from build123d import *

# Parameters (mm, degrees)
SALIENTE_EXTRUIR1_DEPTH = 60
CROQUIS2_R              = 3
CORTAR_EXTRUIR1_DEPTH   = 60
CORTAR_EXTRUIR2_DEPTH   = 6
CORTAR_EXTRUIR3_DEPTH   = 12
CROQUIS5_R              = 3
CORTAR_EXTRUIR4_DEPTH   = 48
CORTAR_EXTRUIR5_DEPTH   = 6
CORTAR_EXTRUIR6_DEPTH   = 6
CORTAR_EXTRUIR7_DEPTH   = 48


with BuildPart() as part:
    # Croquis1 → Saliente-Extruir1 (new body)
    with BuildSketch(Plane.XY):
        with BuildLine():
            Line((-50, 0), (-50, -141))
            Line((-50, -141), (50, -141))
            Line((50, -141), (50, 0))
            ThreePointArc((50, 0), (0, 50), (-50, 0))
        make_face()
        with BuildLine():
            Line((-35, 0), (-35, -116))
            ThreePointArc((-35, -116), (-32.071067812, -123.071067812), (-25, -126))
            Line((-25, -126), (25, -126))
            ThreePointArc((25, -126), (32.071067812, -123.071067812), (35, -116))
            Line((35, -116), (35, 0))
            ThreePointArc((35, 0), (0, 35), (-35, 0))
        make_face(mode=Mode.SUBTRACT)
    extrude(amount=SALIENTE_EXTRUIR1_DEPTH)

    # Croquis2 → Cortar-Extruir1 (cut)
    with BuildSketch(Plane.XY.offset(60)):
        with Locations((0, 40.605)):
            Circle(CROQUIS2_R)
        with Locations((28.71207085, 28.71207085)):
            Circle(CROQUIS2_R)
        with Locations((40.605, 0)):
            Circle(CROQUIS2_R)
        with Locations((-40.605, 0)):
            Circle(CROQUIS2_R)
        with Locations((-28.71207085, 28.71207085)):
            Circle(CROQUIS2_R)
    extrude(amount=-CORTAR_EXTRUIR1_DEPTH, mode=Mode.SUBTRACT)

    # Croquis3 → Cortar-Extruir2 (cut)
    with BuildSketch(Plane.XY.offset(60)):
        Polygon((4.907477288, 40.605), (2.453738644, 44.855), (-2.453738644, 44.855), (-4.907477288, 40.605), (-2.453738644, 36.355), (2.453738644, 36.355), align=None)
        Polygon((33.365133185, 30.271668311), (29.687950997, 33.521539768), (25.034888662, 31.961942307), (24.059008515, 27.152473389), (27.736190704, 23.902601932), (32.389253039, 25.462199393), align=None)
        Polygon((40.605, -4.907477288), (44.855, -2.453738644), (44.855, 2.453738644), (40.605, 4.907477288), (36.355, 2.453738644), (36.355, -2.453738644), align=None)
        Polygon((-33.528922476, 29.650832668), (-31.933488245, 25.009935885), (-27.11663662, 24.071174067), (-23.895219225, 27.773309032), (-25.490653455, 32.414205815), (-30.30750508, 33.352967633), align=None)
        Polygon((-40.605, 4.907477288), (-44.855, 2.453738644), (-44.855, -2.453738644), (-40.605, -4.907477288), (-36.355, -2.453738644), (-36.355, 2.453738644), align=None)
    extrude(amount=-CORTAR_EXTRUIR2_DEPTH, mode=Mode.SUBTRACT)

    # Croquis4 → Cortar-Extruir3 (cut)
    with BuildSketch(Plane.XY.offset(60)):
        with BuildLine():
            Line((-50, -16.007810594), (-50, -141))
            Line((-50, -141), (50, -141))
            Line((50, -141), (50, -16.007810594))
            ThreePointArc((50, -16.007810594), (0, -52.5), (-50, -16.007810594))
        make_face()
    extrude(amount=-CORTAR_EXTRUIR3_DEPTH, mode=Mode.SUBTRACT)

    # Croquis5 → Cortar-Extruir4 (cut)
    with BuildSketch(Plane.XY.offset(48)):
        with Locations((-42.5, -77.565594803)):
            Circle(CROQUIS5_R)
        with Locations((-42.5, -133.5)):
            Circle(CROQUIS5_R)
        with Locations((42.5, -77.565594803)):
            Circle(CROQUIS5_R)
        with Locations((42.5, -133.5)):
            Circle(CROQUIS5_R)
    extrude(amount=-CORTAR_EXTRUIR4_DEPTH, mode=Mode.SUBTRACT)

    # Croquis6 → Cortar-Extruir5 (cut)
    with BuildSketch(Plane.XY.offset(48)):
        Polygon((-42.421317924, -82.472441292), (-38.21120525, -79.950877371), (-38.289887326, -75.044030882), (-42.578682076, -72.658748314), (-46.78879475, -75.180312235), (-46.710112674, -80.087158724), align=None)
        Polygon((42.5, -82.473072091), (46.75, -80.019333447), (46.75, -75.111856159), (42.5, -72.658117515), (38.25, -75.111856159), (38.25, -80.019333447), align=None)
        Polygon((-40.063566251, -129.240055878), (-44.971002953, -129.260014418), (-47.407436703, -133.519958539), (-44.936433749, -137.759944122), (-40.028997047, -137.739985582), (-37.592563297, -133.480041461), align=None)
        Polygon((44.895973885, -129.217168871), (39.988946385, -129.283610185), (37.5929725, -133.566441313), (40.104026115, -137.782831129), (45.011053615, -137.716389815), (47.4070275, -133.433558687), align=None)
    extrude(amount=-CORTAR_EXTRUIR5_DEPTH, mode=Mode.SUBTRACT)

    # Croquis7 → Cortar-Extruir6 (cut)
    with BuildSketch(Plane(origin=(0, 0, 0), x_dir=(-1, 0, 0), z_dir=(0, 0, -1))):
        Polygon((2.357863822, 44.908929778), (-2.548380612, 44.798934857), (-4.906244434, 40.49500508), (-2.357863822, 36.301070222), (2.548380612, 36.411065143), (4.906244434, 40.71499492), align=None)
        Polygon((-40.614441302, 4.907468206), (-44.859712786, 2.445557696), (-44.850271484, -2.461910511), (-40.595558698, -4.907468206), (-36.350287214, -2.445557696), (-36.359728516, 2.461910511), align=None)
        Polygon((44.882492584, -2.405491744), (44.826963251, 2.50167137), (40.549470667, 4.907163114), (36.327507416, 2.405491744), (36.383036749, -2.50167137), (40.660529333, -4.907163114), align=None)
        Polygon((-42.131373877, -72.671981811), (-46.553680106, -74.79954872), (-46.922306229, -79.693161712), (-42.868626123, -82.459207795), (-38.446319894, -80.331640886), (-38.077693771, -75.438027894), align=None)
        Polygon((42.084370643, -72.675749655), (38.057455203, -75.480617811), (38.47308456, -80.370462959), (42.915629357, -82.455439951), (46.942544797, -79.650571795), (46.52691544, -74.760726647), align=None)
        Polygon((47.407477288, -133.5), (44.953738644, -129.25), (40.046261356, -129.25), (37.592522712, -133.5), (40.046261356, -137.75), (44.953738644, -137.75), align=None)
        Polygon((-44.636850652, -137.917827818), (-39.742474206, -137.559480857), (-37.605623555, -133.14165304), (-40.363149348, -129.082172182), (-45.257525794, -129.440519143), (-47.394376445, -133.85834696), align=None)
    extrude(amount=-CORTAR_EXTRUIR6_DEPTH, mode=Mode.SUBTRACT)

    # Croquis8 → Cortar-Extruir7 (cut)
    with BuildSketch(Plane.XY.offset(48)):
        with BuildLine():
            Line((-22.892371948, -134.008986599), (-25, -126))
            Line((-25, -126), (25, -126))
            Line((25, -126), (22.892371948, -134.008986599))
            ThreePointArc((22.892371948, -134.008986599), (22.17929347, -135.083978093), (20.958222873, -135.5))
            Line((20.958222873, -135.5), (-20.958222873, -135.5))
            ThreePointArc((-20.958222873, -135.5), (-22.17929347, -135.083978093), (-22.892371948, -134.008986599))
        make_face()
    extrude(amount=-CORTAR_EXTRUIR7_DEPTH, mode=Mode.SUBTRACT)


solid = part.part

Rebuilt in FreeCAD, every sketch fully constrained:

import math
import FreeCAD as App
import Part
import Sketcher

V = App.Vector
Q = App.Units.Quantity

doc = App.newDocument("Part")
body = doc.addObject("PartDesign::Body", "Body")

# Sketch on XY plane
sketch1 = doc.addObject("Sketcher::SketchObject", "Sketch")
body.addObject(sketch1)
sketch1.AttachmentSupport = (doc.XY_Plane, [""])
sketch1.MapMode = "FlatFace"
sketch1.addGeometry(Part.LineSegment(V(-50, 0, 0), V(-50, -141, 0)), False)
sketch1.addGeometry(Part.LineSegment(V(-50, -141, 0), V(50, -141, 0)), False)
sketch1.addGeometry(Part.LineSegment(V(50, -141, 0), V(50, 0, 0)), False)
sketch1.addGeometry(Part.ArcOfCircle(Part.Circle(V(0, 0, 0), V(0, 0, 1), 50), math.radians(0), math.radians(180)), False)
sketch1.addGeometry(Part.LineSegment(V(-35, -116, 0), V(-35, 0, 0)), False)
sketch1.addGeometry(Part.ArcOfCircle(Part.Circle(V(0, 0, 0), V(0, 0, 1), 35), math.radians(0), math.radians(180)), False)
sketch1.addGeometry(Part.LineSegment(V(35, 0, 0), V(35, -116, 0)), False)
sketch1.addGeometry(Part.ArcOfCircle(Part.Circle(V(25, -116, 0), V(0, 0, 1), 10), math.radians(-90), math.radians(0)), False)
sketch1.addGeometry(Part.LineSegment(V(25, -126, 0), V(-25, -126, 0)), False)
sketch1.addGeometry(Part.ArcOfCircle(Part.Circle(V(-25, -116, 0), V(0, 0, 1), 10), math.radians(180), math.radians(270)), False)
sketch1.addConstraint(Sketcher.Constraint("Coincident", 0, 2, 1, 1))
sketch1.addConstraint(Sketcher.Constraint("Coincident", 1, 2, 2, 1))
sketch1.addConstraint(Sketcher.Constraint("Tangent", 2, 2, 3, 1))
sketch1.addConstraint(Sketcher.Constraint("Tangent", 3, 2, 0, 1))
sketch1.addConstraint(Sketcher.Constraint("Tangent", 4, 2, 5, 2))
sketch1.addConstraint(Sketcher.Constraint("Tangent", 5, 1, 6, 1))
sketch1.addConstraint(Sketcher.Constraint("Tangent", 6, 2, 7, 2))
sketch1.addConstraint(Sketcher.Constraint("Tangent", 7, 1, 8, 1))
sketch1.addConstraint(Sketcher.Constraint("Tangent", 8, 2, 9, 2))
sketch1.addConstraint(Sketcher.Constraint("Tangent", 9, 1, 4, 1))
sketch1.addConstraint(Sketcher.Constraint("Vertical", 0))
sketch1.addConstraint(Sketcher.Constraint("Horizontal", 1))
sketch1.addConstraint(Sketcher.Constraint("Vertical", 2))
sketch1.addConstraint(Sketcher.Constraint("Vertical", 4))
sketch1.addConstraint(Sketcher.Constraint("Vertical", 6))
sketch1.addConstraint(Sketcher.Constraint("Horizontal", 8))
sketch1.addConstraint(Sketcher.Constraint("Coincident", 3, 3, -1, 1))
sketch1.addConstraint(Sketcher.Constraint("Coincident", 5, 3, -1, 1))
sketch1.addConstraint(Sketcher.Constraint("Equal", 7, 9))
sketch1.addConstraint(Sketcher.Constraint("Radius", 3, Q("50 mm")))
sketch1.addConstraint(Sketcher.Constraint("Radius", 5, Q("35 mm")))
sketch1.addConstraint(Sketcher.Constraint("Radius", 7, Q("10 mm")))
sketch1.addConstraint(Sketcher.Constraint("DistanceY", 0, 2, 0, 1, Q("141 mm")))
sketch1.addConstraint(Sketcher.Constraint("DistanceY", 4, 1, 4, 2, Q("116 mm")))
pad1 = doc.addObject("PartDesign::Pad", "Pad")
body.addObject(pad1)
pad1.Profile = sketch1
pad1.Length = 60

# Sketch on XY plane
sketch2 = doc.addObject("Sketcher::SketchObject", "Sketch001")
body.addObject(sketch2)
sketch2.AttachmentSupport = (doc.XY_Plane, [""])
sketch2.MapMode = "FlatFace"
sketch2.AttachmentOffset = App.Placement(V(0, 0, 60), App.Rotation())
sketch2.addGeometry(Part.Circle(V(0, 40.6, 0), V(0, 0, 1), 3), False)
sketch2.addGeometry(Part.Circle(V(28.7, 28.7, 0), V(0, 0, 1), 3), False)
sketch2.addGeometry(Part.Circle(V(40.6, 0, 0), V(0, 0, 1), 3), False)
sketch2.addGeometry(Part.Circle(V(-40.6, 0, 0), V(0, 0, 1), 3), False)
sketch2.addGeometry(Part.Circle(V(-28.7, 28.7, 0), V(0, 0, 1), 3), False)
sketch2.addConstraint(Sketcher.Constraint("Equal", 0, 1))
sketch2.addConstraint(Sketcher.Constraint("Equal", 1, 2))
sketch2.addConstraint(Sketcher.Constraint("Equal", 2, 3))
sketch2.addConstraint(Sketcher.Constraint("Equal", 3, 4))
sketch2.addConstraint(Sketcher.Constraint("Symmetric", 2, 3, 3, 3, -1, 1))
sketch2.addConstraint(Sketcher.Constraint("Symmetric", 1, 3, 4, 3, -2))
sketch2.addConstraint(Sketcher.Constraint("PointOnObject", 0, 3, -2))
sketch2.addConstraint(Sketcher.Constraint("PointOnObject", 2, 3, -1))
sketch2.addConstraint(Sketcher.Constraint("Diameter", 0, Q("6 mm")))
sketch2.addConstraint(Sketcher.Constraint("DistanceX", 3, 3, 2, 3, Q("81.21 mm")))
sketch2.addConstraint(Sketcher.Constraint("DistanceY", -1, 1, 0, 3, Q("40.605 mm")))
sketch2.addConstraint(Sketcher.Constraint("DistanceX", -1, 1, 1, 3, Q("28.712071 mm")))
sketch2.addConstraint(Sketcher.Constraint("DistanceY", -1, 1, 1, 3, Q("28.712071 mm")))
pocket1 = doc.addObject("PartDesign::Pocket", "Pocket")
body.addObject(pocket1)
pocket1.Profile = sketch2
pocket1.Length = 60

# Sketch on XY plane
sketch3 = doc.addObject("Sketcher::SketchObject", "Sketch002")
body.addObject(sketch3)
sketch3.AttachmentSupport = (doc.XY_Plane, [""])
sketch3.MapMode = "FlatFace"
sketch3.AttachmentOffset = App.Placement(V(0, 0, 60), App.Rotation())
sketch3.addGeometry(Part.LineSegment(V(4.9, 40.6, 0), V(2.5, 44.9, 0)), False)
sketch3.addGeometry(Part.LineSegment(V(2.5, 44.9, 0), V(-2.5, 44.9, 0)), False)
sketch3.addGeometry(Part.LineSegment(V(-2.5, 44.9, 0), V(-4.9, 40.6, 0)), False)
sketch3.addGeometry(Part.LineSegment(V(-4.9, 40.6, 0), V(-2.5, 36.4, 0)), False)
sketch3.addGeometry(Part.LineSegment(V(-2.5, 36.4, 0), V(2.5, 36.4, 0)), False)
sketch3.addGeometry(Part.LineSegment(V(2.5, 36.4, 0), V(4.9, 40.6, 0)), False)
sketch3.addGeometry(Part.LineSegment(V(33.4, 30.3, 0), V(29.7, 33.5, 0)), False)
sketch3.addGeometry(Part.LineSegment(V(29.7, 33.5, 0), V(25, 32, 0)), False)
sketch3.addGeometry(Part.LineSegment(V(25, 32, 0), V(24.1, 27.2, 0)), False)
sketch3.addGeometry(Part.LineSegment(V(24.1, 27.2, 0), V(27.7, 23.9, 0)), False)
sketch3.addGeometry(Part.LineSegment(V(27.7, 23.9, 0), V(32.4, 25.5, 0)), False)
sketch3.addGeometry(Part.LineSegment(V(32.4, 25.5, 0), V(33.4, 30.3, 0)), False)
sketch3.addGeometry(Part.LineSegment(V(40.6, -4.9, 0), V(44.9, -2.5, 0)), False)
sketch3.addGeometry(Part.LineSegment(V(44.9, -2.5, 0), V(44.9, 2.5, 0)), False)
sketch3.addGeometry(Part.LineSegment(V(44.9, 2.5, 0), V(40.6, 4.9, 0)), False)
sketch3.addGeometry(Part.LineSegment(V(40.6, 4.9, 0), V(36.4, 2.5, 0)), False)
sketch3.addGeometry(Part.LineSegment(V(36.4, 2.5, 0), V(36.4, -2.5, 0)), False)
sketch3.addGeometry(Part.LineSegment(V(36.4, -2.5, 0), V(40.6, -4.9, 0)), False)
sketch3.addGeometry(Part.LineSegment(V(-33.5, 29.7, 0), V(-31.9, 25, 0)), False)
sketch3.addGeometry(Part.LineSegment(V(-31.9, 25, 0), V(-27.1, 24.1, 0)), False)
sketch3.addGeometry(Part.LineSegment(V(-27.1, 24.1, 0), V(-23.9, 27.8, 0)), False)
sketch3.addGeometry(Part.LineSegment(V(-23.9, 27.8, 0), V(-25.5, 32.4, 0)), False)
sketch3.addGeometry(Part.LineSegment(V(-25.5, 32.4, 0), V(-30.3, 33.4, 0)), False)
sketch3.addGeometry(Part.LineSegment(V(-30.3, 33.4, 0), V(-33.5, 29.7, 0)), False)
sketch3.addGeometry(Part.LineSegment(V(-40.6, 4.9, 0), V(-44.9, 2.5, 0)), False)
sketch3.addGeometry(Part.LineSegment(V(-44.9, 2.5, 0), V(-44.9, -2.5, 0)), False)
sketch3.addGeometry(Part.LineSegment(V(-44.9, -2.5, 0), V(-40.6, -4.9, 0)), False)
sketch3.addGeometry(Part.LineSegment(V(-40.6, -4.9, 0), V(-36.4, -2.5, 0)), False)
sketch3.addGeometry(Part.LineSegment(V(-36.4, -2.5, 0), V(-36.4, 2.5, 0)), False)
sketch3.addGeometry(Part.LineSegment(V(-36.4, 2.5, 0), V(-40.6, 4.9, 0)), False)
sketch3.addConstraint(Sketcher.Constraint("Coincident", 0, 2, 1, 1))
sketch3.addConstraint(Sketcher.Constraint("Coincident", 1, 2, 2, 1))
sketch3.addConstraint(Sketcher.Constraint("Coincident", 2, 2, 3, 1))
sketch3.addConstraint(Sketcher.Constraint("Coincident", 3, 2, 4, 1))
sketch3.addConstraint(Sketcher.Constraint("Coincident", 4, 2, 5, 1))
sketch3.addConstraint(Sketcher.Constraint("Coincident", 5, 2, 0, 1))
sketch3.addConstraint(Sketcher.Constraint("Coincident", 6, 2, 7, 1))
sketch3.addConstraint(Sketcher.Constraint("Coincident", 7, 2, 8, 1))
sketch3.addConstraint(Sketcher.Constraint("Coincident", 8, 2, 9, 1))
sketch3.addConstraint(Sketcher.Constraint("Coincident", 9, 2, 10, 1))
sketch3.addConstraint(Sketcher.Constraint("Coincident", 10, 2, 11, 1))
sketch3.addConstraint(Sketcher.Constraint("Coincident", 11, 2, 6, 1))
sketch3.addConstraint(Sketcher.Constraint("Coincident", 12, 2, 13, 1))
sketch3.addConstraint(Sketcher.Constraint("Coincident", 13, 2, 14, 1))
sketch3.addConstraint(Sketcher.Constraint("Coincident", 14, 2, 15, 1))
sketch3.addConstraint(Sketcher.Constraint("Coincident", 15, 2, 16, 1))
sketch3.addConstraint(Sketcher.Constraint("Coincident", 16, 2, 17, 1))
sketch3.addConstraint(Sketcher.Constraint("Coincident", 17, 2, 12, 1))
sketch3.addConstraint(Sketcher.Constraint("Coincident", 18, 2, 19, 1))
sketch3.addConstraint(Sketcher.Constraint("Coincident", 19, 2, 20, 1))
sketch3.addConstraint(Sketcher.Constraint("Coincident", 20, 2, 21, 1))
sketch3.addConstraint(Sketcher.Constraint("Coincident", 21, 2, 22, 1))
sketch3.addConstraint(Sketcher.Constraint("Coincident", 22, 2, 23, 1))
sketch3.addConstraint(Sketcher.Constraint("Coincident", 23, 2, 18, 1))
sketch3.addConstraint(Sketcher.Constraint("Coincident", 24, 2, 25, 1))
sketch3.addConstraint(Sketcher.Constraint("Coincident", 25, 2, 26, 1))
sketch3.addConstraint(Sketcher.Constraint("Coincident", 26, 2, 27, 1))
sketch3.addConstraint(Sketcher.Constraint("Coincident", 27, 2, 28, 1))
sketch3.addConstraint(Sketcher.Constraint("Coincident", 28, 2, 29, 1))
sketch3.addConstraint(Sketcher.Constraint("Coincident", 29, 2, 24, 1))
sketch3.addConstraint(Sketcher.Constraint("Horizontal", 1))
sketch3.addConstraint(Sketcher.Constraint("Horizontal", 4))
sketch3.addConstraint(Sketcher.Constraint("Vertical", 13))
sketch3.addConstraint(Sketcher.Constraint("Vertical", 16))
sketch3.addConstraint(Sketcher.Constraint("Vertical", 25))
sketch3.addConstraint(Sketcher.Constraint("Vertical", 28))
sketch3.addConstraint(Sketcher.Constraint("Symmetric", 12, 2, 24, 2, -1, 1))
sketch3.addConstraint(Sketcher.Constraint("Symmetric", 14, 2, 26, 2, -1, 1))
sketch3.addConstraint(Sketcher.Constraint("Symmetric", 15, 2, 27, 2, -1, 1))
sketch3.addConstraint(Sketcher.Constraint("Symmetric", 17, 2, 29, 2, -1, 1))
sketch3.addConstraint(Sketcher.Constraint("Symmetric", 2, 2, 5, 2, -2))
sketch3.addConstraint(Sketcher.Constraint("Symmetric", 17, 2, 26, 2, -2))
sketch3.addConstraint(Sketcher.Constraint("Parallel", 0, 3))
sketch3.addConstraint(Sketcher.Constraint("Parallel", 2, 5))
sketch3.addConstraint(Sketcher.Constraint("Parallel", 6, 9))
sketch3.addConstraint(Sketcher.Constraint("Parallel", 7, 10))
sketch3.addConstraint(Sketcher.Constraint("Parallel", 8, 11))
sketch3.addConstraint(Sketcher.Constraint("Perpendicular", 3, 12))
sketch3.addConstraint(Sketcher.Constraint("Perpendicular", 5, 14))
sketch3.addConstraint(Sketcher.Constraint("Parallel", 12, 15))
sketch3.addConstraint(Sketcher.Constraint("Parallel", 14, 17))
sketch3.addConstraint(Sketcher.Constraint("Parallel", 18, 21))
sketch3.addConstraint(Sketcher.Constraint("Parallel", 19, 22))
sketch3.addConstraint(Sketcher.Constraint("Parallel", 20, 23))
sketch3.addConstraint(Sketcher.Constraint("Parallel", 17, 26))
sketch3.addConstraint(Sketcher.Constraint("Parallel", 26, 29))
sketch3.addConstraint(Sketcher.Constraint("Horizontal", 13, 2, 15, 2))
sketch3.addConstraint(Sketcher.Constraint("Horizontal", 12, 2, 16, 2))
sketch3.addConstraint(Sketcher.Constraint("Vertical", 1, 2, 3, 2))
sketch3.addConstraint(Sketcher.Constraint("Equal", 4, 13))
sketch3.addConstraint(Sketcher.Constraint("Equal", 5, 6))
sketch3.addConstraint(Sketcher.Constraint("Equal", 6, 7))
sketch3.addConstraint(Sketcher.Constraint("Equal", 7, 8))
sketch3.addConstraint(Sketcher.Constraint("Equal", 8, 9))
sketch3.addConstraint(Sketcher.Constraint("Equal", 11, 12))
sketch3.addConstraint(Sketcher.Constraint("Equal", 17, 18))
sketch3.addConstraint(Sketcher.Constraint("Equal", 18, 19))
sketch3.addConstraint(Sketcher.Constraint("Equal", 19, 20))
sketch3.addConstraint(Sketcher.Constraint("Equal", 20, 21))
sketch3.addConstraint(Sketcher.Constraint("Angle", 0, Q("120 deg")))
sketch3.addConstraint(Sketcher.Constraint("DistanceY", 3, 2, 1, 2, Q("8.5 mm")))
sketch3.addConstraint(Sketcher.Constraint("DistanceY", -1, 1, 0, 2, Q("44.855 mm")))
sketch3.addConstraint(Sketcher.Constraint("DistanceX", -1, 1, 12, 2, Q("44.855 mm")))
sketch3.addConstraint(Sketcher.Constraint("DistanceY", -1, 1, 9, 2, Q("23.902602 mm")))
sketch3.addConstraint(Sketcher.Constraint("DistanceY", -1, 1, 10, 2, Q("25.462199 mm")))
sketch3.addConstraint(Sketcher.Constraint("DistanceX", 1, 2, 1, 1, Q("4.907477 mm")))
sketch3.addConstraint(Sketcher.Constraint("DistanceX", -1, 1, 6, 2, Q("29.687951 mm")))
sketch3.addConstraint(Sketcher.Constraint("DistanceY", -1, 1, 6, 2, Q("33.52154 mm")))
sketch3.addConstraint(Sketcher.Constraint("DistanceX", -1, 1, 8, 2, Q("24.059009 mm")))
sketch3.addConstraint(Sketcher.Constraint("DistanceX", 18, 2, -1, 1, Q("31.933488 mm")))
sketch3.addConstraint(Sketcher.Constraint("DistanceX", 20, 2, -1, 1, Q("23.895219 mm")))
sketch3.addConstraint(Sketcher.Constraint("DistanceY", -1, 1, 20, 2, Q("27.773309 mm")))
sketch3.addConstraint(Sketcher.Constraint("DistanceX", 18, 2, 19, 2, Q("4.816852 mm")))
sketch3.addConstraint(Sketcher.Constraint("DistanceY", 19, 2, 21, 2, Q("8.343032 mm")))
pocket2 = doc.addObject("PartDesign::Pocket", "Pocket001")
body.addObject(pocket2)
pocket2.Profile = sketch3
pocket2.Length = 6

# Sketch on XY plane
sketch4 = doc.addObject("Sketcher::SketchObject", "Sketch003")
body.addObject(sketch4)
sketch4.AttachmentSupport = (doc.XY_Plane, [""])
sketch4.MapMode = "FlatFace"
sketch4.AttachmentOffset = App.Placement(V(0, 0, 60), App.Rotation())
sketch4.addGeometry(Part.LineSegment(V(-50, -16, 0), V(-50, -141, 0)), False)
sketch4.addGeometry(Part.LineSegment(V(-50, -141, 0), V(50, -141, 0)), False)
sketch4.addGeometry(Part.LineSegment(V(50, -141, 0), V(50, -16, 0)), False)
sketch4.addGeometry(Part.ArcOfCircle(Part.Circle(V(0, 0, 0), V(0, 0, 1), 52), math.radians(-162), math.radians(-18)), False)
sketch4.addConstraint(Sketcher.Constraint("Coincident", 0, 2, 1, 1))
sketch4.addConstraint(Sketcher.Constraint("Coincident", 1, 2, 2, 1))
sketch4.addConstraint(Sketcher.Constraint("Coincident", 2, 2, 3, 2))
sketch4.addConstraint(Sketcher.Constraint("Coincident", 3, 1, 0, 1))
sketch4.addConstraint(Sketcher.Constraint("Vertical", 0))
sketch4.addConstraint(Sketcher.Constraint("Horizontal", 1))
sketch4.addConstraint(Sketcher.Constraint("Vertical", 2))
sketch4.addConstraint(Sketcher.Constraint("Coincident", 3, 3, -1, 1))
sketch4.addConstraint(Sketcher.Constraint("Horizontal", 2, 2, 3, 1))
sketch4.addConstraint(Sketcher.Constraint("Radius", 3, Q("52.5 mm")))
sketch4.addConstraint(Sketcher.Constraint("DistanceX", 1, 1, 1, 2, Q("100 mm")))
sketch4.addConstraint(Sketcher.Constraint("DistanceY", 0, 2, -1, 1, Q("141 mm")))
pocket3 = doc.addObject("PartDesign::Pocket", "Pocket002")
body.addObject(pocket3)
pocket3.Profile = sketch4
pocket3.Length = 12

# Sketch on XY plane
sketch5 = doc.addObject("Sketcher::SketchObject", "Sketch004")
body.addObject(sketch5)
sketch5.AttachmentSupport = (doc.XY_Plane, [""])
sketch5.MapMode = "FlatFace"
sketch5.AttachmentOffset = App.Placement(V(0, 0, 48), App.Rotation())
sketch5.addGeometry(Part.Circle(V(-42.5, -77.6, 0), V(0, 0, 1), 3), False)
sketch5.addGeometry(Part.Circle(V(-42.5, -133.5, 0), V(0, 0, 1), 3), False)
sketch5.addGeometry(Part.Circle(V(42.5, -77.6, 0), V(0, 0, 1), 3), False)
sketch5.addGeometry(Part.Circle(V(42.5, -133.5, 0), V(0, 0, 1), 3), False)
sketch5.addConstraint(Sketcher.Constraint("Equal", 0, 1))
sketch5.addConstraint(Sketcher.Constraint("Equal", 1, 2))
sketch5.addConstraint(Sketcher.Constraint("Equal", 2, 3))
sketch5.addConstraint(Sketcher.Constraint("Symmetric", 0, 3, 2, 3, -2))
sketch5.addConstraint(Sketcher.Constraint("Symmetric", 1, 3, 3, 3, -2))
sketch5.addConstraint(Sketcher.Constraint("Vertical", 0, 3, 1, 3))
sketch5.addConstraint(Sketcher.Constraint("Diameter", 0, Q("6 mm")))
sketch5.addConstraint(Sketcher.Constraint("DistanceX", 0, 3, 2, 3, Q("85 mm")))
sketch5.addConstraint(Sketcher.Constraint("DistanceY", 1, 3, -1, 1, Q("133.5 mm")))
sketch5.addConstraint(Sketcher.Constraint("DistanceY", 0, 3, -1, 1, Q("77.565595 mm")))
pocket4 = doc.addObject("PartDesign::Pocket", "Pocket003")
body.addObject(pocket4)
pocket4.Profile = sketch5
pocket4.Length = 48

# Sketch on XY plane
sketch6 = doc.addObject("Sketcher::SketchObject", "Sketch005")
body.addObject(sketch6)
sketch6.AttachmentSupport = (doc.XY_Plane, [""])
sketch6.MapMode = "FlatFace"
sketch6.AttachmentOffset = App.Placement(V(0, 0, 48), App.Rotation())
sketch6.addGeometry(Part.LineSegment(V(-42.421318, -82.472441, 0), V(-38.211205, -79.950877, 0)), False)
sketch6.addGeometry(Part.LineSegment(V(-38.211205, -79.950877, 0), V(-38.289887, -75.044031, 0)), False)
sketch6.addGeometry(Part.LineSegment(V(-38.289887, -75.044031, 0), V(-42.578682, -72.658748, 0)), False)
sketch6.addGeometry(Part.LineSegment(V(-42.578682, -72.658748, 0), V(-46.788795, -75.180312, 0)), False)
sketch6.addGeometry(Part.LineSegment(V(-46.788795, -75.180312, 0), V(-46.710113, -80.087159, 0)), False)
sketch6.addGeometry(Part.LineSegment(V(-46.710113, -80.087159, 0), V(-42.421318, -82.472441, 0)), False)
sketch6.addGeometry(Part.LineSegment(V(42.5, -82.473072, 0), V(46.75, -80.019333, 0)), False)
sketch6.addGeometry(Part.LineSegment(V(46.75, -80.019333, 0), V(46.75, -75.111856, 0)), False)
sketch6.addGeometry(Part.LineSegment(V(46.75, -75.111856, 0), V(42.5, -72.658118, 0)), False)
sketch6.addGeometry(Part.LineSegment(V(42.5, -72.658118, 0), V(38.25, -75.111856, 0)), False)
sketch6.addGeometry(Part.LineSegment(V(38.25, -75.111856, 0), V(38.25, -80.019333, 0)), False)
sketch6.addGeometry(Part.LineSegment(V(38.25, -80.019333, 0), V(42.5, -82.473072, 0)), False)
sketch6.addGeometry(Part.LineSegment(V(-40.063566, -129.240056, 0), V(-44.971003, -129.260014, 0)), False)
sketch6.addGeometry(Part.LineSegment(V(-44.971003, -129.260014, 0), V(-47.407437, -133.519959, 0)), False)
sketch6.addGeometry(Part.LineSegment(V(-47.407437, -133.519959, 0), V(-44.936434, -137.759944, 0)), False)
sketch6.addGeometry(Part.LineSegment(V(-44.936434, -137.759944, 0), V(-40.028997, -137.739986, 0)), False)
sketch6.addGeometry(Part.LineSegment(V(-40.028997, -137.739986, 0), V(-37.592563, -133.480041, 0)), False)
sketch6.addGeometry(Part.LineSegment(V(-37.592563, -133.480041, 0), V(-40.063566, -129.240056, 0)), False)
sketch6.addGeometry(Part.LineSegment(V(44.895974, -129.217169, 0), V(39.988946, -129.28361, 0)), False)
sketch6.addGeometry(Part.LineSegment(V(39.988946, -129.28361, 0), V(37.592973, -133.566441, 0)), False)
sketch6.addGeometry(Part.LineSegment(V(37.592973, -133.566441, 0), V(40.104026, -137.782831, 0)), False)
sketch6.addGeometry(Part.LineSegment(V(40.104026, -137.782831, 0), V(45.011054, -137.71639, 0)), False)
sketch6.addGeometry(Part.LineSegment(V(45.011054, -137.71639, 0), V(47.407027, -133.433559, 0)), False)
sketch6.addGeometry(Part.LineSegment(V(47.407027, -133.433559, 0), V(44.895974, -129.217169, 0)), False)
sketch6.addConstraint(Sketcher.Constraint("Coincident", 0, 2, 1, 1))
sketch6.addConstraint(Sketcher.Constraint("Coincident", 1, 2, 2, 1))
sketch6.addConstraint(Sketcher.Constraint("Coincident", 2, 2, 3, 1))
sketch6.addConstraint(Sketcher.Constraint("Coincident", 3, 2, 4, 1))
sketch6.addConstraint(Sketcher.Constraint("Coincident", 4, 2, 5, 1))
sketch6.addConstraint(Sketcher.Constraint("Coincident", 5, 2, 0, 1))
sketch6.addConstraint(Sketcher.Constraint("Coincident", 6, 2, 7, 1))
sketch6.addConstraint(Sketcher.Constraint("Coincident", 7, 2, 8, 1))
sketch6.addConstraint(Sketcher.Constraint("Coincident", 8, 2, 9, 1))
sketch6.addConstraint(Sketcher.Constraint("Coincident", 9, 2, 10, 1))
sketch6.addConstraint(Sketcher.Constraint("Coincident", 10, 2, 11, 1))
sketch6.addConstraint(Sketcher.Constraint("Coincident", 11, 2, 6, 1))
sketch6.addConstraint(Sketcher.Constraint("Coincident", 12, 2, 13, 1))
sketch6.addConstraint(Sketcher.Constraint("Coincident", 13, 2, 14, 1))
sketch6.addConstraint(Sketcher.Constraint("Coincident", 14, 2, 15, 1))
sketch6.addConstraint(Sketcher.Constraint("Coincident", 15, 2, 16, 1))
sketch6.addConstraint(Sketcher.Constraint("Coincident", 16, 2, 17, 1))
sketch6.addConstraint(Sketcher.Constraint("Coincident", 17, 2, 12, 1))
sketch6.addConstraint(Sketcher.Constraint("Coincident", 18, 2, 19, 1))
sketch6.addConstraint(Sketcher.Constraint("Coincident", 19, 2, 20, 1))
sketch6.addConstraint(Sketcher.Constraint("Coincident", 20, 2, 21, 1))
sketch6.addConstraint(Sketcher.Constraint("Coincident", 21, 2, 22, 1))
sketch6.addConstraint(Sketcher.Constraint("Coincident", 22, 2, 23, 1))
sketch6.addConstraint(Sketcher.Constraint("Coincident", 23, 2, 18, 1))
sketch6.addConstraint(Sketcher.Constraint("Vertical", 7))
sketch6.addConstraint(Sketcher.Constraint("Vertical", 10))
sketch6.addConstraint(Sketcher.Constraint("DistanceX", -1, 1, 8, 2, Q("42.5 mm")))
sketch6.addConstraint(Sketcher.Constraint("DistanceX", -1, 1, 11, 2, Q("42.5 mm")))
sketch6.addConstraint(Sketcher.Constraint("DistanceX", 9, 2, 7, 2, Q("8.5 mm")))
sketch6.addConstraint(Sketcher.Constraint("DistanceX", -1, 1, 6, 2, Q("46.75 mm")))
sketch6.addConstraint(Sketcher.Constraint("DistanceX", 20, 2, 22, 2, Q("7.303001 mm")))
sketch6.addConstraint(Sketcher.Constraint("DistanceX", 19, 2, 23, 2, Q("7.303001 mm")))
sketch6.addConstraint(Sketcher.Constraint("DistanceY", 13, 2, 4, 2, Q("53.4328 mm")))
sketch6.addConstraint(Sketcher.Constraint("DistanceY", 16, 2, 5, 2, Q("51.0076 mm")))
sketch6.addConstraint(Sketcher.Constraint("DistanceY", 7, 1, 7, 2, Q("4.907477 mm")))
sketch6.addConstraint(Sketcher.Constraint("DistanceY", 10, 2, 10, 1, Q("4.907477 mm")))
sketch6.addConstraint(Sketcher.Constraint("DistanceY", 1, 2, -1, 1, Q("75.044031 mm")))
sketch6.addConstraint(Sketcher.Constraint("DistanceY", 2, 2, -1, 1, Q("72.658748 mm")))
sketch6.addConstraint(Sketcher.Constraint("DistanceY", 4, 2, -1, 1, Q("80.087159 mm")))
sketch6.addConstraint(Sketcher.Constraint("DistanceY", 5, 2, -1, 1, Q("82.472441 mm")))
sketch6.addConstraint(Sketcher.Constraint("DistanceY", 18, 2, -1, 1, Q("129.28361 mm")))
sketch6.addConstraint(Sketcher.Constraint("DistanceY", 19, 2, -1, 1, Q("133.566441 mm")))
sketch6.addConstraint(Sketcher.Constraint("DistanceY", 20, 2, -1, 1, Q("137.782831 mm")))
sketch6.addConstraint(Sketcher.Constraint("DistanceY", 21, 2, -1, 1, Q("137.71639 mm")))
sketch6.addConstraint(Sketcher.Constraint("DistanceY", 22, 2, -1, 1, Q("133.433559 mm")))
sketch6.addConstraint(Sketcher.Constraint("DistanceY", 23, 2, -1, 1, Q("129.217169 mm")))
sketch6.addConstraint(Sketcher.Constraint("DistanceY", 0, 2, 2, 2, Q("7.292129 mm")))
sketch6.addConstraint(Sketcher.Constraint("DistanceY", 3, 2, 1, 2, Q("0.136281 mm")))
sketch6.addConstraint(Sketcher.Constraint("DistanceX", 3, 2, 0, 2, Q("8.57759 mm")))
sketch6.addConstraint(Sketcher.Constraint("DistanceX", 4, 2, 2, 2, Q("4.131431 mm")))
sketch6.addConstraint(Sketcher.Constraint("DistanceX", 5, 2, 1, 2, Q("4.131431 mm")))
sketch6.addConstraint(Sketcher.Constraint("DistanceY", 0, 2, 7, 2, Q("4.839021 mm")))
sketch6.addConstraint(Sketcher.Constraint("DistanceY", 7, 2, 8, 2, Q("2.453739 mm")))
sketch6.addConstraint(Sketcher.Constraint("DistanceY", 9, 2, 8, 2, Q("2.453739 mm")))
sketch6.addConstraint(Sketcher.Constraint("DistanceY", 11, 2, 6, 2, Q("2.453739 mm")))
sketch6.addConstraint(Sketcher.Constraint("DistanceX", 4, 2, 12, 2, Q("1.73911 mm")))
sketch6.addConstraint(Sketcher.Constraint("DistanceX", 3, 2, 12, 2, Q("1.817792 mm")))
sketch6.addConstraint(Sketcher.Constraint("DistanceX", 13, 2, 5, 2, Q("4.986119 mm")))
sketch6.addConstraint(Sketcher.Constraint("DistanceX", 13, 2, 0, 2, Q("9.196231 mm")))
sketch6.addConstraint(Sketcher.Constraint("DistanceX", 12, 2, 14, 2, Q("0.034569 mm")))
sketch6.addConstraint(Sketcher.Constraint("DistanceY", 14, 2, 12, 2, Q("8.49993 mm")))
sketch6.addConstraint(Sketcher.Constraint("DistanceY", 14, 2, 15, 2, Q("0.019959 mm")))
sketch6.addConstraint(Sketcher.Constraint("DistanceX", 13, 2, 15, 2, Q("7.37844 mm")))
sketch6.addConstraint(Sketcher.Constraint("DistanceY", 15, 2, 0, 2, Q("57.789108 mm")))
sketch6.addConstraint(Sketcher.Constraint("DistanceX", 12, 2, 16, 2, Q("7.37844 mm")))
sketch6.addConstraint(Sketcher.Constraint("DistanceY", 12, 2, 17, 2, Q("0.019959 mm")))
sketch6.addConstraint(Sketcher.Constraint("DistanceX", 17, 2, 15, 2, Q("0.034569 mm")))
sketch6.addConstraint(Sketcher.Constraint("DistanceX", 18, 2, 20, 2, Q("0.11508 mm")))
sketch6.addConstraint(Sketcher.Constraint("DistanceX", 19, 2, 21, 2, Q("7.418081 mm")))
sketch6.addConstraint(Sketcher.Constraint("Distance", 18, Q("4.907477 mm")))
sketch6.addConstraint(Sketcher.Constraint("DistanceX", 0, 2, -1, 1, Q("38.211205 mm")))
sketch6.addConstraint(Sketcher.Constraint("DistanceX", -1, 1, 18, 2, Q("39.988946 mm")))
pocket5 = doc.addObject("PartDesign::Pocket", "Pocket004")
body.addObject(pocket5)
pocket5.Profile = sketch6
pocket5.Length = 6

# Sketch on XY plane
sketch7 = doc.addObject("Sketcher::SketchObject", "Sketch006")
body.addObject(sketch7)
sketch7.AttachmentSupport = (doc.XY_Plane, [""])
sketch7.MapMode = "FlatFace"
sketch7.addGeometry(Part.LineSegment(V(-2.357864, 44.90893, 0), V(2.548381, 44.798935, 0)), False)
sketch7.addGeometry(Part.LineSegment(V(2.548381, 44.798935, 0), V(4.906244, 40.495005, 0)), False)
sketch7.addGeometry(Part.LineSegment(V(4.906244, 40.495005, 0), V(2.357864, 36.30107, 0)), False)
sketch7.addGeometry(Part.LineSegment(V(2.357864, 36.30107, 0), V(-2.548381, 36.411065, 0)), False)
sketch7.addGeometry(Part.LineSegment(V(-2.548381, 36.411065, 0), V(-4.906244, 40.714995, 0)), False)
sketch7.addGeometry(Part.LineSegment(V(-4.906244, 40.714995, 0), V(-2.357864, 44.90893, 0)), False)
sketch7.addGeometry(Part.LineSegment(V(40.614441, 4.907468, 0), V(44.859713, 2.445558, 0)), False)
sketch7.addGeometry(Part.LineSegment(V(44.859713, 2.445558, 0), V(44.850271, -2.461911, 0)), False)
sketch7.addGeometry(Part.LineSegment(V(44.850271, -2.461911, 0), V(40.595559, -4.907468, 0)), False)
sketch7.addGeometry(Part.LineSegment(V(40.595559, -4.907468, 0), V(36.350287, -2.445558, 0)), False)
sketch7.addGeometry(Part.LineSegment(V(36.350287, -2.445558, 0), V(36.359729, 2.461911, 0)), False)
sketch7.addGeometry(Part.LineSegment(V(36.359729, 2.461911, 0), V(40.614441, 4.907468, 0)), False)
sketch7.addGeometry(Part.LineSegment(V(-44.882493, -2.405492, 0), V(-44.826963, 2.501671, 0)), False)
sketch7.addGeometry(Part.LineSegment(V(-44.826963, 2.501671, 0), V(-40.549471, 4.907163, 0)), False)
sketch7.addGeometry(Part.LineSegment(V(-40.549471, 4.907163, 0), V(-36.327507, 2.405492, 0)), False)
sketch7.addGeometry(Part.LineSegment(V(-36.327507, 2.405492, 0), V(-36.383037, -2.501671, 0)), False)
sketch7.addGeometry(Part.LineSegment(V(-36.383037, -2.501671, 0), V(-40.660529, -4.907163, 0)), False)
sketch7.addGeometry(Part.LineSegment(V(-40.660529, -4.907163, 0), V(-44.882493, -2.405492, 0)), False)
sketch7.addGeometry(Part.LineSegment(V(42.131374, -72.671982, 0), V(46.55368, -74.799549, 0)), False)
sketch7.addGeometry(Part.LineSegment(V(46.55368, -74.799549, 0), V(46.922306, -79.693162, 0)), False)
sketch7.addGeometry(Part.LineSegment(V(46.922306, -79.693162, 0), V(42.868626, -82.459208, 0)), False)
sketch7.addGeometry(Part.LineSegment(V(42.868626, -82.459208, 0), V(38.44632, -80.331641, 0)), False)
sketch7.addGeometry(Part.LineSegment(V(38.44632, -80.331641, 0), V(38.077694, -75.438028, 0)), False)
sketch7.addGeometry(Part.LineSegment(V(38.077694, -75.438028, 0), V(42.131374, -72.671982, 0)), False)
sketch7.addGeometry(Part.LineSegment(V(-42.084371, -72.67575, 0), V(-38.057455, -75.480618, 0)), False)
sketch7.addGeometry(Part.LineSegment(V(-38.057455, -75.480618, 0), V(-38.473085, -80.370463, 0)), False)
sketch7.addGeometry(Part.LineSegment(V(-38.473085, -80.370463, 0), V(-42.915629, -82.45544, 0)), False)
sketch7.addGeometry(Part.LineSegment(V(-42.915629, -82.45544, 0), V(-46.942545, -79.650572, 0)), False)
sketch7.addGeometry(Part.LineSegment(V(-46.942545, -79.650572, 0), V(-46.526915, -74.760727, 0)), False)
sketch7.addGeometry(Part.LineSegment(V(-46.526915, -74.760727, 0), V(-42.084371, -72.67575, 0)), False)
sketch7.addGeometry(Part.LineSegment(V(-47.407477, -133.5, 0), V(-44.953739, -129.25, 0)), False)
sketch7.addGeometry(Part.LineSegment(V(-44.953739, -129.25, 0), V(-40.046261, -129.25, 0)), False)
sketch7.addGeometry(Part.LineSegment(V(-40.046261, -129.25, 0), V(-37.592523, -133.5, 0)), False)
sketch7.addGeometry(Part.LineSegment(V(-37.592523, -133.5, 0), V(-40.046261, -137.75, 0)), False)
sketch7.addGeometry(Part.LineSegment(V(-40.046261, -137.75, 0), V(-44.953739, -137.75, 0)), False)
sketch7.addGeometry(Part.LineSegment(V(-44.953739, -137.75, 0), V(-47.407477, -133.5, 0)), False)
sketch7.addGeometry(Part.LineSegment(V(44.636851, -137.917828, 0), V(39.742474, -137.559481, 0)), False)
sketch7.addGeometry(Part.LineSegment(V(39.742474, -137.559481, 0), V(37.605624, -133.141653, 0)), False)
sketch7.addGeometry(Part.LineSegment(V(37.605624, -133.141653, 0), V(40.363149, -129.082172, 0)), False)
sketch7.addGeometry(Part.LineSegment(V(40.363149, -129.082172, 0), V(45.257526, -129.440519, 0)), False)
sketch7.addGeometry(Part.LineSegment(V(45.257526, -129.440519, 0), V(47.394376, -133.858347, 0)), False)
sketch7.addGeometry(Part.LineSegment(V(47.394376, -133.858347, 0), V(44.636851, -137.917828, 0)), False)
sketch7.addConstraint(Sketcher.Constraint("Coincident", 0, 2, 1, 1))
sketch7.addConstraint(Sketcher.Constraint("Coincident", 1, 2, 2, 1))
sketch7.addConstraint(Sketcher.Constraint("Coincident", 2, 2, 3, 1))
sketch7.addConstraint(Sketcher.Constraint("Coincident", 3, 2, 4, 1))
sketch7.addConstraint(Sketcher.Constraint("Coincident", 4, 2, 5, 1))
sketch7.addConstraint(Sketcher.Constraint("Coincident", 5, 2, 0, 1))
sketch7.addConstraint(Sketcher.Constraint("Coincident", 6, 2, 7, 1))
sketch7.addConstraint(Sketcher.Constraint("Coincident", 7, 2, 8, 1))
sketch7.addConstraint(Sketcher.Constraint("Coincident", 8, 2, 9, 1))
sketch7.addConstraint(Sketcher.Constraint("Coincident", 9, 2, 10, 1))
sketch7.addConstraint(Sketcher.Constraint("Coincident", 10, 2, 11, 1))
sketch7.addConstraint(Sketcher.Constraint("Coincident", 11, 2, 6, 1))
sketch7.addConstraint(Sketcher.Constraint("Coincident", 12, 2, 13, 1))
sketch7.addConstraint(Sketcher.Constraint("Coincident", 13, 2, 14, 1))
sketch7.addConstraint(Sketcher.Constraint("Coincident", 14, 2, 15, 1))
sketch7.addConstraint(Sketcher.Constraint("Coincident", 15, 2, 16, 1))
sketch7.addConstraint(Sketcher.Constraint("Coincident", 16, 2, 17, 1))
sketch7.addConstraint(Sketcher.Constraint("Coincident", 17, 2, 12, 1))
sketch7.addConstraint(Sketcher.Constraint("Coincident", 18, 2, 19, 1))
sketch7.addConstraint(Sketcher.Constraint("Coincident", 19, 2, 20, 1))
sketch7.addConstraint(Sketcher.Constraint("Coincident", 20, 2, 21, 1))
sketch7.addConstraint(Sketcher.Constraint("Coincident", 21, 2, 22, 1))
sketch7.addConstraint(Sketcher.Constraint("Coincident", 22, 2, 23, 1))
sketch7.addConstraint(Sketcher.Constraint("Coincident", 23, 2, 18, 1))
sketch7.addConstraint(Sketcher.Constraint("Coincident", 24, 2, 25, 1))
sketch7.addConstraint(Sketcher.Constraint("Coincident", 25, 2, 26, 1))
sketch7.addConstraint(Sketcher.Constraint("Coincident", 26, 2, 27, 1))
sketch7.addConstraint(Sketcher.Constraint("Coincident", 27, 2, 28, 1))
sketch7.addConstraint(Sketcher.Constraint("Coincident", 28, 2, 29, 1))
sketch7.addConstraint(Sketcher.Constraint("Coincident", 29, 2, 24, 1))
sketch7.addConstraint(Sketcher.Constraint("Coincident", 30, 2, 31, 1))
sketch7.addConstraint(Sketcher.Constraint("Coincident", 31, 2, 32, 1))
sketch7.addConstraint(Sketcher.Constraint("Coincident", 32, 2, 33, 1))
sketch7.addConstraint(Sketcher.Constraint("Coincident", 33, 2, 34, 1))
sketch7.addConstraint(Sketcher.Constraint("Coincident", 34, 2, 35, 1))
sketch7.addConstraint(Sketcher.Constraint("Coincident", 35, 2, 30, 1))
sketch7.addConstraint(Sketcher.Constraint("Coincident", 36, 2, 37, 1))
sketch7.addConstraint(Sketcher.Constraint("Coincident", 37, 2, 38, 1))
sketch7.addConstraint(Sketcher.Constraint("Coincident", 38, 2, 39, 1))
sketch7.addConstraint(Sketcher.Constraint("Coincident", 39, 2, 40, 1))
sketch7.addConstraint(Sketcher.Constraint("Coincident", 40, 2, 41, 1))
sketch7.addConstraint(Sketcher.Constraint("Coincident", 41, 2, 36, 1))
sketch7.addConstraint(Sketcher.Constraint("Horizontal", 31))
sketch7.addConstraint(Sketcher.Constraint("Horizontal", 34))
sketch7.addConstraint(Sketcher.Constraint("DistanceY", 32, 2, -1, 1, Q("133.5 mm")))
sketch7.addConstraint(Sketcher.Constraint("DistanceY", 35, 2, -1, 1, Q("133.5 mm")))
sketch7.addConstraint(Sketcher.Constraint("DistanceY", 33, 2, 31, 2, Q("8.5 mm")))
sketch7.addConstraint(Sketcher.Constraint("DistanceY", 30, 2, -1, 1, Q("129.25 mm")))
sketch7.addConstraint(Sketcher.Constraint("DistanceY", 12, 2, 2, 2, Q("33.799399 mm")))
sketch7.addConstraint(Sketcher.Constraint("DistanceX", 12, 2, 5, 2, Q("42.469099 mm")))
sketch7.addConstraint(Sketcher.Constraint("DistanceY", 25, 2, 16, 2, Q("75.4633 mm")))
sketch7.addConstraint(Sketcher.Constraint("DistanceX", 26, 2, 16, 2, Q("2.2551 mm")))
sketch7.addConstraint(Sketcher.Constraint("DistanceX", 20, 2, 39, 2, Q("2.3889 mm")))
sketch7.addConstraint(Sketcher.Constraint("DistanceX", 38, 2, 41, 2, Q("4.273701 mm")))
sketch7.addConstraint(Sketcher.Constraint("DistanceX", 31, 1, 31, 2, Q("4.907477 mm")))
sketch7.addConstraint(Sketcher.Constraint("DistanceX", 34, 2, 34, 1, Q("4.907477 mm")))
sketch7.addConstraint(Sketcher.Constraint("DistanceX", -1, 1, 0, 2, Q("2.548381 mm")))
sketch7.addConstraint(Sketcher.Constraint("DistanceY", -1, 1, 2, 2, Q("36.30107 mm")))
sketch7.addConstraint(Sketcher.Constraint("DistanceX", 3, 2, -1, 1, Q("2.548381 mm")))
sketch7.addConstraint(Sketcher.Constraint("DistanceY", -1, 1, 5, 2, Q("44.90893 mm")))
sketch7.addConstraint(Sketcher.Constraint("DistanceX", -1, 1, 7, 2, Q("44.850271 mm")))
sketch7.addConstraint(Sketcher.Constraint("DistanceY", 7, 2, -1, 1, Q("2.461911 mm")))
sketch7.addConstraint(Sketcher.Constraint("DistanceX", -1, 1, 8, 2, Q("40.595559 mm")))
sketch7.addConstraint(Sketcher.Constraint("DistanceY", 8, 2, -1, 1, Q("4.907468 mm")))
sketch7.addConstraint(Sketcher.Constraint("DistanceX", -1, 1, 10, 2, Q("36.359729 mm")))
sketch7.addConstraint(Sketcher.Constraint("DistanceY", -1, 1, 10, 2, Q("2.461911 mm")))
sketch7.addConstraint(Sketcher.Constraint("DistanceX", -1, 1, 11, 2, Q("40.614441 mm")))
sketch7.addConstraint(Sketcher.Constraint("DistanceY", -1, 1, 11, 2, Q("4.907468 mm")))
sketch7.addConstraint(Sketcher.Constraint("DistanceX", 13, 2, -1, 1, Q("40.549471 mm")))
sketch7.addConstraint(Sketcher.Constraint("DistanceY", -1, 1, 14, 2, Q("2.405492 mm")))
sketch7.addConstraint(Sketcher.Constraint("DistanceY", 15, 2, -1, 1, Q("2.501671 mm")))
sketch7.addConstraint(Sketcher.Constraint("DistanceX", 16, 2, -1, 1, Q("40.660529 mm")))
sketch7.addConstraint(Sketcher.Constraint("DistanceY", 17, 2, -1, 1, Q("2.405492 mm")))
sketch7.addConstraint(Sketcher.Constraint("DistanceX", -1, 1, 18, 2, Q("46.55368 mm")))
sketch7.addConstraint(Sketcher.Constraint("DistanceY", 18, 2, -1, 1, Q("74.799549 mm")))
sketch7.addConstraint(Sketcher.Constraint("DistanceY", 19, 2, -1, 1, Q("79.693162 mm")))
sketch7.addConstraint(Sketcher.Constraint("DistanceX", -1, 1, 21, 2, Q("38.44632 mm")))
sketch7.addConstraint(Sketcher.Constraint("DistanceY", 21, 2, -1, 1, Q("80.331641 mm")))
sketch7.addConstraint(Sketcher.Constraint("DistanceY", 23, 2, -1, 1, Q("72.671982 mm")))
sketch7.addConstraint(Sketcher.Constraint("DistanceY", 26, 2, -1, 1, Q("82.45544 mm")))
sketch7.addConstraint(Sketcher.Constraint("DistanceY", 27, 2, -1, 1, Q("79.650572 mm")))
sketch7.addConstraint(Sketcher.Constraint("DistanceX", 29, 2, -1, 1, Q("42.084371 mm")))
sketch7.addConstraint(Sketcher.Constraint("DistanceY", 29, 2, -1, 1, Q("72.67575 mm")))
sketch7.addConstraint(Sketcher.Constraint("DistanceX", 30, 2, -1, 1, Q("44.953739 mm")))
sketch7.addConstraint(Sketcher.Constraint("DistanceX", 33, 2, -1, 1, Q("40.046261 mm")))
sketch7.addConstraint(Sketcher.Constraint("DistanceY", 36, 2, -1, 1, Q("137.559481 mm")))
sketch7.addConstraint(Sketcher.Constraint("DistanceX", -1, 1, 38, 2, Q("40.363149 mm")))
sketch7.addConstraint(Sketcher.Constraint("DistanceY", 39, 2, -1, 1, Q("129.440519 mm")))
sketch7.addConstraint(Sketcher.Constraint("DistanceY", 1, 2, 0, 2, Q("4.30393 mm")))
sketch7.addConstraint(Sketcher.Constraint("DistanceX", 2, 2, 1, 2, Q("2.548381 mm")))
sketch7.addConstraint(Sketcher.Constraint("DistanceY", 3, 2, 1, 2, Q("4.08394 mm")))
sketch7.addConstraint(Sketcher.Constraint("DistanceY", 3, 2, 4, 2, Q("4.30393 mm")))
sketch7.addConstraint(Sketcher.Constraint("DistanceX", 4, 2, 2, 2, Q("7.264108 mm")))
sketch7.addConstraint(Sketcher.Constraint("DistanceX", 4, 2, 5, 2, Q("2.548381 mm")))
sketch7.addConstraint(Sketcher.Constraint("DistanceX", 2, 2, 6, 2, Q("42.501849 mm")))
sketch7.addConstraint(Sketcher.Constraint("DistanceX", 7, 2, 6, 2, Q("0.009441 mm")))
sketch7.addConstraint(Sketcher.Constraint("DistanceY", 7, 2, 6, 2, Q("4.907468 mm")))
sketch7.addConstraint(Sketcher.Constraint("DistanceX", 9, 2, 8, 2, Q("4.245271 mm")))
sketch7.addConstraint(Sketcher.Constraint("DistanceY", 8, 2, 9, 2, Q("2.461911 mm")))
sketch7.addConstraint(Sketcher.Constraint("DistanceY", 12, 2, 13, 2, Q("2.405492 mm")))
sketch7.addConstraint(Sketcher.Constraint("DistanceY", 13, 2, 4, 2, Q("35.807832 mm")))
sketch7.addConstraint(Sketcher.Constraint("DistanceX", 14, 2, 2, 2, Q("38.685371 mm")))
sketch7.addConstraint(Sketcher.Constraint("DistanceX", 15, 2, 14, 2, Q("0.055529 mm")))
sketch7.addConstraint(Sketcher.Constraint("DistanceY", 16, 2, 15, 2, Q("2.405492 mm")))
sketch7.addConstraint(Sketcher.Constraint("DistanceX", 17, 2, 12, 2, Q("0.055529 mm")))
sketch7.addConstraint(Sketcher.Constraint("DistanceX", 9, 2, 19, 2, Q("10.572019 mm")))
sketch7.addConstraint(Sketcher.Constraint("DistanceX", 20, 2, 19, 2, Q("4.05368 mm")))
sketch7.addConstraint(Sketcher.Constraint("DistanceY", 20, 2, 18, 2, Q("7.659659 mm")))
sketch7.addConstraint(Sketcher.Constraint("DistanceY", 20, 2, 22, 2, Q("7.02118 mm")))
sketch7.addConstraint(Sketcher.Constraint("DistanceX", 22, 2, 23, 2, Q("4.05368 mm")))
sketch7.addConstraint(Sketcher.Constraint("DistanceX", 24, 2, 15, 2, Q("1.674418 mm")))
sketch7.addConstraint(Sketcher.Constraint("DistanceX", 24, 2, 22, 2, Q("76.135149 mm")))
sketch7.addConstraint(Sketcher.Constraint("DistanceY", 24, 2, 22, 2, Q("0.04259 mm")))
sketch7.addConstraint(Sketcher.Constraint("DistanceX", 25, 2, 24, 2, Q("0.415629 mm")))
sketch7.addConstraint(Sketcher.Constraint("DistanceX", 27, 2, 25, 2, Q("8.46946 mm")))
sketch7.addConstraint(Sketcher.Constraint("DistanceX", 27, 2, 28, 2, Q("0.415629 mm")))
sketch7.addConstraint(Sketcher.Constraint("DistanceY", 24, 2, 28, 2, Q("0.719891 mm")))
sketch7.addConstraint(Sketcher.Constraint("DistanceX", 31, 2, 32, 2, Q("2.453739 mm")))
sketch7.addConstraint(Sketcher.Constraint("DistanceX", 35, 2, 30, 2, Q("2.453739 mm")))
sketch7.addConstraint(Sketcher.Constraint("DistanceX", 36, 2, 20, 2, Q("3.126152 mm")))
sketch7.addConstraint(Sketcher.Constraint("DistanceX", 37, 2, 36, 2, Q("2.136851 mm")))
sketch7.addConstraint(Sketcher.Constraint("DistanceY", 37, 2, 19, 2, Q("53.448491 mm")))
sketch7.addConstraint(Sketcher.Constraint("DistanceY", 37, 2, 38, 2, Q("4.059481 mm")))
sketch7.addConstraint(Sketcher.Constraint("DistanceX", 39, 2, 40, 2, Q("2.136851 mm")))
sketch7.addConstraint(Sketcher.Constraint("DistanceY", 40, 2, 20, 2, Q("51.399139 mm")))
sketch7.addConstraint(Sketcher.Constraint("DistanceY", 41, 2, 40, 2, Q("4.059481 mm")))
pocket6 = doc.addObject("PartDesign::Pocket", "Pocket005")
body.addObject(pocket6)
pocket6.Profile = sketch7
pocket6.Length = 6
pocket6.Reversed = True

# Sketch on XY plane
sketch8 = doc.addObject("Sketcher::SketchObject", "Sketch007")
body.addObject(sketch8)
sketch8.AttachmentSupport = (doc.XY_Plane, [""])
sketch8.MapMode = "FlatFace"
sketch8.AttachmentOffset = App.Placement(V(0, 0, 48), App.Rotation())
sketch8.addGeometry(Part.LineSegment(V(-25, -126, 0), V(-22.9, -134, 0)), False)
sketch8.addGeometry(Part.ArcOfCircle(Part.Circle(V(-21, -133.5, 0), V(0, 0, 1), 2), math.radians(-165), math.radians(-90)), False)
sketch8.addGeometry(Part.LineSegment(V(-21, -135.5, 0), V(21, -135.5, 0)), False)
sketch8.addGeometry(Part.ArcOfCircle(Part.Circle(V(21, -133.5, 0), V(0, 0, 1), 2), math.radians(-90), math.radians(-15)), False)
sketch8.addGeometry(Part.LineSegment(V(22.9, -134, 0), V(25, -126, 0)), False)
sketch8.addGeometry(Part.LineSegment(V(25, -126, 0), V(-25, -126, 0)), False)
sketch8.addConstraint(Sketcher.Constraint("Tangent", 0, 2, 1, 1))
sketch8.addConstraint(Sketcher.Constraint("Tangent", 1, 2, 2, 1))
sketch8.addConstraint(Sketcher.Constraint("Tangent", 2, 2, 3, 1))
sketch8.addConstraint(Sketcher.Constraint("Tangent", 3, 2, 4, 1))
sketch8.addConstraint(Sketcher.Constraint("Coincident", 4, 2, 5, 1))
sketch8.addConstraint(Sketcher.Constraint("Coincident", 5, 2, 0, 1))
sketch8.addConstraint(Sketcher.Constraint("Horizontal", 2))
sketch8.addConstraint(Sketcher.Constraint("Horizontal", 5))
sketch8.addConstraint(Sketcher.Constraint("Equal", 1, 3))
sketch8.addConstraint(Sketcher.Constraint("Symmetric", 0, 2, 3, 2, -2))
sketch8.addConstraint(Sketcher.Constraint("Radius", 1, Q("2 mm")))
sketch8.addConstraint(Sketcher.Constraint("DistanceX", 5, 2, 5, 1, Q("50 mm")))
sketch8.addConstraint(Sketcher.Constraint("DistanceY", 4, 2, -1, 1, Q("126 mm")))
sketch8.addConstraint(Sketcher.Constraint("DistanceY", 1, 3, -1, 1, Q("133.5 mm")))
sketch8.addConstraint(Sketcher.Constraint("DistanceX", 2, 1, 2, 2, Q("41.916446 mm")))
pocket7 = doc.addObject("PartDesign::Pocket", "Pocket006")
body.addObject(pocket7)
pocket7.Profile = sketch8
pocket7.Length = 48

doc.recompute()
